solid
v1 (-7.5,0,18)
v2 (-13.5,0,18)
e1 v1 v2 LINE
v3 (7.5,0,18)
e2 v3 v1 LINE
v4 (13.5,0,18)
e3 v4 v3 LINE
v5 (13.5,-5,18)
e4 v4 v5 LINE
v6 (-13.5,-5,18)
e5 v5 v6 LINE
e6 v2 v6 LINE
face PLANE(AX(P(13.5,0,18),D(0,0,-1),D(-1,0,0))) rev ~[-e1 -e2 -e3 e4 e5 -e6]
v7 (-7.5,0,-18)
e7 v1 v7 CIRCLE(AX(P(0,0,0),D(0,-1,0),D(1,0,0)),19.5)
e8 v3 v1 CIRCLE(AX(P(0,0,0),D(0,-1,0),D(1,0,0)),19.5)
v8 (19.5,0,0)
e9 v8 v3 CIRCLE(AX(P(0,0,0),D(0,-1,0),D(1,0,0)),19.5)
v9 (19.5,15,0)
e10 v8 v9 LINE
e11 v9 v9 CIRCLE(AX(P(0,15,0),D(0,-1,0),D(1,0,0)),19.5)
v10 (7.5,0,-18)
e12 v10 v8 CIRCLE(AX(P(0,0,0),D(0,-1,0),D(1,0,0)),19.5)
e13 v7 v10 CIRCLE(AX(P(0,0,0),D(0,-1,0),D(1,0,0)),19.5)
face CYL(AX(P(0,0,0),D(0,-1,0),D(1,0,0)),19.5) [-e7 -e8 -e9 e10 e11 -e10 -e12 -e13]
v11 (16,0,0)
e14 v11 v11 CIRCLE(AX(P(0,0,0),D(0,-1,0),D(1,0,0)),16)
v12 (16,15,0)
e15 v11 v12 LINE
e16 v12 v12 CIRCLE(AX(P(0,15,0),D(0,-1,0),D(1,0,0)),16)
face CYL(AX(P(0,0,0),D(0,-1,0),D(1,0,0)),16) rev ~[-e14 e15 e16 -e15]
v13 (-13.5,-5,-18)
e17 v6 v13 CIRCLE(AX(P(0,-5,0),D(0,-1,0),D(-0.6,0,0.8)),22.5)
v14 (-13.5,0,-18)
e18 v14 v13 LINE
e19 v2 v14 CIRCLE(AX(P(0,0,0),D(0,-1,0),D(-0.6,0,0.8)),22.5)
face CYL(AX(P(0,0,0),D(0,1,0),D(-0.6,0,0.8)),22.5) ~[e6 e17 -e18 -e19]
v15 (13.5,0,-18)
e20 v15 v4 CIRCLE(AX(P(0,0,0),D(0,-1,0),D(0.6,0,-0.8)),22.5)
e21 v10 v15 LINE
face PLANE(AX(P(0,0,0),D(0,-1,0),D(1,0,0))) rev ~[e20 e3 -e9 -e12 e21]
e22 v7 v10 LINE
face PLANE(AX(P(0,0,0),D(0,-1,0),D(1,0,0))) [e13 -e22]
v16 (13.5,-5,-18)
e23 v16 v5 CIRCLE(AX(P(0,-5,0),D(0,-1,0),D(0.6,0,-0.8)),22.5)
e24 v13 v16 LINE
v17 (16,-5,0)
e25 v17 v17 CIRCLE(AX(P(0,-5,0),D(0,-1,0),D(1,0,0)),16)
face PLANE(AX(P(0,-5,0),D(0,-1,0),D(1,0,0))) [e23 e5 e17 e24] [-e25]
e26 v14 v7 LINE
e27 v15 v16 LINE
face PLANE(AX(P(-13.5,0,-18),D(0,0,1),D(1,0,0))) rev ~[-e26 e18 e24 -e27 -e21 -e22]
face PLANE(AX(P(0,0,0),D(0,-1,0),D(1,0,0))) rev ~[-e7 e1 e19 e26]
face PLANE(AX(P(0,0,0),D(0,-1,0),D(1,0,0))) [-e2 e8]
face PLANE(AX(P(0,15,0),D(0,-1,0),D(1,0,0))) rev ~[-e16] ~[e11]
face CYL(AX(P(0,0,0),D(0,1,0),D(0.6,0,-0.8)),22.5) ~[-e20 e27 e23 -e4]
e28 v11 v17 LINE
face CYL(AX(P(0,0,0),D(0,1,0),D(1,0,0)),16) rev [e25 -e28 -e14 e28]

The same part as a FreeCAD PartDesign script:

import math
import FreeCAD as App
import Part
import Sketcher

V = App.Vector

doc = App.newDocument("Part")
body = doc.addObject("PartDesign::Body", "Body")

# Sketch on XZ plane
sketch1 = doc.addObject("Sketcher::SketchObject", "Sketch")
body.addObject(sketch1)
sketch1.AttachmentSupport = (doc.XZ_Plane, [""])
sketch1.MapMode = "FlatFace"
sketch1.addGeometry(Part.ArcOfCircle(Part.Circle(V(0, 0, 0), V(0, 0, 1), 22), math.radians(-53), math.radians(53)), False)
sketch1.addGeometry(Part.LineSegment(V(14, 18, 0), V(-14, 18, 0)), False)
sketch1.addGeometry(Part.ArcOfCircle(Part.Circle(V(0, 0, 0), V(0, 0, 1), 22), math.radians(127), math.radians(233)), False)
sketch1.addGeometry(Part.LineSegment(V(-14, -18, 0), V(14, -18, 0)), False)
sketch1.addGeometry(Part.Circle(V(0, 0, 0), V(0, 0, 1), 16), False)
sketch1.addConstraint(Sketcher.Constraint("Coincident", 0, 2, 1, 1))
sketch1.addConstraint(Sketcher.Constraint("Coincident", 1, 2, 2, 1))
sketch1.addConstraint(Sketcher.Constraint("Coincident", 2, 2, 3, 1))
sketch1.addConstraint(Sketcher.Constraint("Coincident", 3, 2, 0, 1))
sketch1.addConstraint(Sketcher.Constraint("Horizontal", 1))
sketch1.addConstraint(Sketcher.Constraint("Horizontal", 3))
sketch1.addConstraint(Sketcher.Constraint("Coincident", 0, 3, -1, 1))
sketch1.addConstraint(Sketcher.Constraint("Coincident", 2, 3, -1, 1))
sketch1.addConstraint(Sketcher.Constraint("Coincident", 4, 3, -1, 1))
sketch1.addConstraint(Sketcher.Constraint("Equal", 0, 2))
sketch1.addConstraint(Sketcher.Constraint("Vertical", 1, 2, 2, 2))
sketch1.addConstraint(Sketcher.Constraint("Diameter", 4, 32.0))
sketch1.addConstraint(Sketcher.Constraint("Radius", 0, 22.5))
sketch1.addConstraint(Sketcher.Constraint("DistanceX", 1, 2, 1, 1, 27.0))
pad1 = doc.addObject("PartDesign::Pad", "Pad")
body.addObject(pad1)
pad1.Profile = sketch1
pad1.Length = 5

# Sketch on XZ plane
sketch2 = doc.addObject("Sketcher::SketchObject", "Sketch001")
body.addObject(sketch2)
sketch2.AttachmentSupport = (doc.XZ_Plane, [""])
sketch2.MapMode = "FlatFace"
sketch2.addGeometry(Part.Circle(V(0, 0, 0), V(0, 0, 1), 20), False)
sketch2.addGeometry(Part.Circle(V(0, 0, 0), V(0, 0, 1), 16), False)
sketch2.addConstraint(Sketcher.Constraint("Coincident", 0, 3, -1, 1))
sketch2.addConstraint(Sketcher.Constraint("Coincident", 1, 3, -1, 1))
sketch2.addConstraint(Sketcher.Constraint("Diameter", 0, 39.0))
sketch2.addConstraint(Sketcher.Constraint("Diameter", 1, 32.0))
pad2 = doc.addObject("PartDesign::Pad", "Pad001")
body.addObject(pad2)
pad2.Profile = sketch2
pad2.Length = 15
pad2.Reversed = True

doc.recompute()
